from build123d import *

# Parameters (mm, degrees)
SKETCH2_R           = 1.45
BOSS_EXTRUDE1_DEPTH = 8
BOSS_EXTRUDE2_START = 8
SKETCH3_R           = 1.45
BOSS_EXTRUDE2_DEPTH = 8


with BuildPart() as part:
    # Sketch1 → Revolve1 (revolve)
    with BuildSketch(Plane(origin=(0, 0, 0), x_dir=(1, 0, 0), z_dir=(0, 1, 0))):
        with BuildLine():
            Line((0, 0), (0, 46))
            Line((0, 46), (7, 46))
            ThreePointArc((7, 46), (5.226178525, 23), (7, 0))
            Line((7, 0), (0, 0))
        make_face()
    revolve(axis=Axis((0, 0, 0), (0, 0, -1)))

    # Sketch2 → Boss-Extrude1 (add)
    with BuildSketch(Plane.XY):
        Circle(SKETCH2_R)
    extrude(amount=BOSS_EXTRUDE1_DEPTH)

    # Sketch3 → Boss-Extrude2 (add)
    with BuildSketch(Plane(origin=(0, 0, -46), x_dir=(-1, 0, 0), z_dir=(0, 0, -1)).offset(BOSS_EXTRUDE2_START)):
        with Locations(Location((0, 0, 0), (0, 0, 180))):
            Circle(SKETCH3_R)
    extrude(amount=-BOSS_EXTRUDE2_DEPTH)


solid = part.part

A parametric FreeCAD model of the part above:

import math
import FreeCAD as App
import Part
import Sketcher

V = App.Vector

doc = App.newDocument("Part")
body = doc.addObject("PartDesign::Body", "Body")

# Sketch on XZ plane
sketch1 = body.newObject("Sketcher::SketchObject", "Sketch")
sketch1.AttachmentSupport = (doc.getObject("XZ_Plane"), [""])
sketch1.MapMode = "FlatFace"
sketch1.addGeometry(Part.LineSegment(V(0, -46, 0), V(0, 0, 0)), False)
sketch1.addGeometry(Part.LineSegment(V(0, 0, 0), V(7, 0, 0)), False)
sketch1.addGeometry(Part.ArcOfCircle(Part.Circle(V(155, -23, 0), V(0, 0, 1), 150), math.radians(171.18), math.radians(188.82)), False)
sketch1.addGeometry(Part.LineSegment(V(7, -46, 0), V(0, -46, 0)), False)
sketch1.addConstraint(Sketcher.Constraint("Coincident", 0, 2, 1, 1))
sketch1.addConstraint(Sketcher.Constraint("Coincident", 1, 2, 2, 1))
sketch1.addConstraint(Sketcher.Constraint("Coincident", 2, 2, 3, 1))
sketch1.addConstraint(Sketcher.Constraint("Coincident", 3, 2, 0, 1))
sketch1.addConstraint(Sketcher.Constraint("Vertical", 0))
sketch1.addConstraint(Sketcher.Constraint("Horizontal", 1))
sketch1.addConstraint(Sketcher.Constraint("Horizontal", 3))
sketch1.addConstraint(Sketcher.Constraint("Coincident", 0, 2, -1, 1))
sketch1.addConstraint(Sketcher.Constraint("Vertical", 1, 2, 2, 2))
sketch1.addConstraint(Sketcher.Constraint("Radius", 2, 150.0))
sketch1.addConstraint(Sketcher.Constraint("DistanceX", 1, 1, 1, 2, 7.0))
sketch1.addConstraint(Sketcher.Constraint("DistanceY", 0, 1, 0, 2, 46.0))
revolution = body.newObject("PartDesign::Revolution", "Revolution")
revolution.Profile = sketch1
revolution.ReferenceAxis = (sketch1, ["V_Axis"])
revolution.Angle = 360

# Sketch on XY plane
sketch2 = body.newObject("Sketcher::SketchObject", "Sketch001")
sketch2.AttachmentSupport = (doc.getObject("XY_Plane"), [""])
sketch2.MapMode = "FlatFace"
sketch2.addGeometry(Part.Circle(V(0, 0, 0), V(0, 0, 1), 1.4), False)
sketch2.addConstraint(Sketcher.Constraint("Coincident", 0, 3, -1, 1))
sketch2.addConstraint(Sketcher.Constraint("Diameter", 0, 2.9))
pad1 = body.newObject("PartDesign::Pad", "Pad")
pad1.Profile = sketch2
pad1.Length = 8

# Sketch on XY plane
sketch3 = body.newObject("Sketcher::SketchObject", "Sketch002")
sketch3.AttachmentSupport = (doc.getObject("XY_Plane"), [""])
sketch3.MapMode = "FlatFace"
sketch3.AttachmentOffset = App.Placement(V(0, 0, -54), App.Rotation())
sketch3.addGeometry(Part.Circle(V(0, 0, 0), V(0, 0, 1), 1.4), False)
sketch3.addConstraint(Sketcher.Constraint("Coincident", 0, 3, -1, 1))
sketch3.addConstraint(Sketcher.Constraint("Diameter", 0, 2.9))
pad2 = body.newObject("PartDesign::Pad", "Pad001")
pad2.Profile = sketch3
pad2.Length = 8

doc.recompute()
